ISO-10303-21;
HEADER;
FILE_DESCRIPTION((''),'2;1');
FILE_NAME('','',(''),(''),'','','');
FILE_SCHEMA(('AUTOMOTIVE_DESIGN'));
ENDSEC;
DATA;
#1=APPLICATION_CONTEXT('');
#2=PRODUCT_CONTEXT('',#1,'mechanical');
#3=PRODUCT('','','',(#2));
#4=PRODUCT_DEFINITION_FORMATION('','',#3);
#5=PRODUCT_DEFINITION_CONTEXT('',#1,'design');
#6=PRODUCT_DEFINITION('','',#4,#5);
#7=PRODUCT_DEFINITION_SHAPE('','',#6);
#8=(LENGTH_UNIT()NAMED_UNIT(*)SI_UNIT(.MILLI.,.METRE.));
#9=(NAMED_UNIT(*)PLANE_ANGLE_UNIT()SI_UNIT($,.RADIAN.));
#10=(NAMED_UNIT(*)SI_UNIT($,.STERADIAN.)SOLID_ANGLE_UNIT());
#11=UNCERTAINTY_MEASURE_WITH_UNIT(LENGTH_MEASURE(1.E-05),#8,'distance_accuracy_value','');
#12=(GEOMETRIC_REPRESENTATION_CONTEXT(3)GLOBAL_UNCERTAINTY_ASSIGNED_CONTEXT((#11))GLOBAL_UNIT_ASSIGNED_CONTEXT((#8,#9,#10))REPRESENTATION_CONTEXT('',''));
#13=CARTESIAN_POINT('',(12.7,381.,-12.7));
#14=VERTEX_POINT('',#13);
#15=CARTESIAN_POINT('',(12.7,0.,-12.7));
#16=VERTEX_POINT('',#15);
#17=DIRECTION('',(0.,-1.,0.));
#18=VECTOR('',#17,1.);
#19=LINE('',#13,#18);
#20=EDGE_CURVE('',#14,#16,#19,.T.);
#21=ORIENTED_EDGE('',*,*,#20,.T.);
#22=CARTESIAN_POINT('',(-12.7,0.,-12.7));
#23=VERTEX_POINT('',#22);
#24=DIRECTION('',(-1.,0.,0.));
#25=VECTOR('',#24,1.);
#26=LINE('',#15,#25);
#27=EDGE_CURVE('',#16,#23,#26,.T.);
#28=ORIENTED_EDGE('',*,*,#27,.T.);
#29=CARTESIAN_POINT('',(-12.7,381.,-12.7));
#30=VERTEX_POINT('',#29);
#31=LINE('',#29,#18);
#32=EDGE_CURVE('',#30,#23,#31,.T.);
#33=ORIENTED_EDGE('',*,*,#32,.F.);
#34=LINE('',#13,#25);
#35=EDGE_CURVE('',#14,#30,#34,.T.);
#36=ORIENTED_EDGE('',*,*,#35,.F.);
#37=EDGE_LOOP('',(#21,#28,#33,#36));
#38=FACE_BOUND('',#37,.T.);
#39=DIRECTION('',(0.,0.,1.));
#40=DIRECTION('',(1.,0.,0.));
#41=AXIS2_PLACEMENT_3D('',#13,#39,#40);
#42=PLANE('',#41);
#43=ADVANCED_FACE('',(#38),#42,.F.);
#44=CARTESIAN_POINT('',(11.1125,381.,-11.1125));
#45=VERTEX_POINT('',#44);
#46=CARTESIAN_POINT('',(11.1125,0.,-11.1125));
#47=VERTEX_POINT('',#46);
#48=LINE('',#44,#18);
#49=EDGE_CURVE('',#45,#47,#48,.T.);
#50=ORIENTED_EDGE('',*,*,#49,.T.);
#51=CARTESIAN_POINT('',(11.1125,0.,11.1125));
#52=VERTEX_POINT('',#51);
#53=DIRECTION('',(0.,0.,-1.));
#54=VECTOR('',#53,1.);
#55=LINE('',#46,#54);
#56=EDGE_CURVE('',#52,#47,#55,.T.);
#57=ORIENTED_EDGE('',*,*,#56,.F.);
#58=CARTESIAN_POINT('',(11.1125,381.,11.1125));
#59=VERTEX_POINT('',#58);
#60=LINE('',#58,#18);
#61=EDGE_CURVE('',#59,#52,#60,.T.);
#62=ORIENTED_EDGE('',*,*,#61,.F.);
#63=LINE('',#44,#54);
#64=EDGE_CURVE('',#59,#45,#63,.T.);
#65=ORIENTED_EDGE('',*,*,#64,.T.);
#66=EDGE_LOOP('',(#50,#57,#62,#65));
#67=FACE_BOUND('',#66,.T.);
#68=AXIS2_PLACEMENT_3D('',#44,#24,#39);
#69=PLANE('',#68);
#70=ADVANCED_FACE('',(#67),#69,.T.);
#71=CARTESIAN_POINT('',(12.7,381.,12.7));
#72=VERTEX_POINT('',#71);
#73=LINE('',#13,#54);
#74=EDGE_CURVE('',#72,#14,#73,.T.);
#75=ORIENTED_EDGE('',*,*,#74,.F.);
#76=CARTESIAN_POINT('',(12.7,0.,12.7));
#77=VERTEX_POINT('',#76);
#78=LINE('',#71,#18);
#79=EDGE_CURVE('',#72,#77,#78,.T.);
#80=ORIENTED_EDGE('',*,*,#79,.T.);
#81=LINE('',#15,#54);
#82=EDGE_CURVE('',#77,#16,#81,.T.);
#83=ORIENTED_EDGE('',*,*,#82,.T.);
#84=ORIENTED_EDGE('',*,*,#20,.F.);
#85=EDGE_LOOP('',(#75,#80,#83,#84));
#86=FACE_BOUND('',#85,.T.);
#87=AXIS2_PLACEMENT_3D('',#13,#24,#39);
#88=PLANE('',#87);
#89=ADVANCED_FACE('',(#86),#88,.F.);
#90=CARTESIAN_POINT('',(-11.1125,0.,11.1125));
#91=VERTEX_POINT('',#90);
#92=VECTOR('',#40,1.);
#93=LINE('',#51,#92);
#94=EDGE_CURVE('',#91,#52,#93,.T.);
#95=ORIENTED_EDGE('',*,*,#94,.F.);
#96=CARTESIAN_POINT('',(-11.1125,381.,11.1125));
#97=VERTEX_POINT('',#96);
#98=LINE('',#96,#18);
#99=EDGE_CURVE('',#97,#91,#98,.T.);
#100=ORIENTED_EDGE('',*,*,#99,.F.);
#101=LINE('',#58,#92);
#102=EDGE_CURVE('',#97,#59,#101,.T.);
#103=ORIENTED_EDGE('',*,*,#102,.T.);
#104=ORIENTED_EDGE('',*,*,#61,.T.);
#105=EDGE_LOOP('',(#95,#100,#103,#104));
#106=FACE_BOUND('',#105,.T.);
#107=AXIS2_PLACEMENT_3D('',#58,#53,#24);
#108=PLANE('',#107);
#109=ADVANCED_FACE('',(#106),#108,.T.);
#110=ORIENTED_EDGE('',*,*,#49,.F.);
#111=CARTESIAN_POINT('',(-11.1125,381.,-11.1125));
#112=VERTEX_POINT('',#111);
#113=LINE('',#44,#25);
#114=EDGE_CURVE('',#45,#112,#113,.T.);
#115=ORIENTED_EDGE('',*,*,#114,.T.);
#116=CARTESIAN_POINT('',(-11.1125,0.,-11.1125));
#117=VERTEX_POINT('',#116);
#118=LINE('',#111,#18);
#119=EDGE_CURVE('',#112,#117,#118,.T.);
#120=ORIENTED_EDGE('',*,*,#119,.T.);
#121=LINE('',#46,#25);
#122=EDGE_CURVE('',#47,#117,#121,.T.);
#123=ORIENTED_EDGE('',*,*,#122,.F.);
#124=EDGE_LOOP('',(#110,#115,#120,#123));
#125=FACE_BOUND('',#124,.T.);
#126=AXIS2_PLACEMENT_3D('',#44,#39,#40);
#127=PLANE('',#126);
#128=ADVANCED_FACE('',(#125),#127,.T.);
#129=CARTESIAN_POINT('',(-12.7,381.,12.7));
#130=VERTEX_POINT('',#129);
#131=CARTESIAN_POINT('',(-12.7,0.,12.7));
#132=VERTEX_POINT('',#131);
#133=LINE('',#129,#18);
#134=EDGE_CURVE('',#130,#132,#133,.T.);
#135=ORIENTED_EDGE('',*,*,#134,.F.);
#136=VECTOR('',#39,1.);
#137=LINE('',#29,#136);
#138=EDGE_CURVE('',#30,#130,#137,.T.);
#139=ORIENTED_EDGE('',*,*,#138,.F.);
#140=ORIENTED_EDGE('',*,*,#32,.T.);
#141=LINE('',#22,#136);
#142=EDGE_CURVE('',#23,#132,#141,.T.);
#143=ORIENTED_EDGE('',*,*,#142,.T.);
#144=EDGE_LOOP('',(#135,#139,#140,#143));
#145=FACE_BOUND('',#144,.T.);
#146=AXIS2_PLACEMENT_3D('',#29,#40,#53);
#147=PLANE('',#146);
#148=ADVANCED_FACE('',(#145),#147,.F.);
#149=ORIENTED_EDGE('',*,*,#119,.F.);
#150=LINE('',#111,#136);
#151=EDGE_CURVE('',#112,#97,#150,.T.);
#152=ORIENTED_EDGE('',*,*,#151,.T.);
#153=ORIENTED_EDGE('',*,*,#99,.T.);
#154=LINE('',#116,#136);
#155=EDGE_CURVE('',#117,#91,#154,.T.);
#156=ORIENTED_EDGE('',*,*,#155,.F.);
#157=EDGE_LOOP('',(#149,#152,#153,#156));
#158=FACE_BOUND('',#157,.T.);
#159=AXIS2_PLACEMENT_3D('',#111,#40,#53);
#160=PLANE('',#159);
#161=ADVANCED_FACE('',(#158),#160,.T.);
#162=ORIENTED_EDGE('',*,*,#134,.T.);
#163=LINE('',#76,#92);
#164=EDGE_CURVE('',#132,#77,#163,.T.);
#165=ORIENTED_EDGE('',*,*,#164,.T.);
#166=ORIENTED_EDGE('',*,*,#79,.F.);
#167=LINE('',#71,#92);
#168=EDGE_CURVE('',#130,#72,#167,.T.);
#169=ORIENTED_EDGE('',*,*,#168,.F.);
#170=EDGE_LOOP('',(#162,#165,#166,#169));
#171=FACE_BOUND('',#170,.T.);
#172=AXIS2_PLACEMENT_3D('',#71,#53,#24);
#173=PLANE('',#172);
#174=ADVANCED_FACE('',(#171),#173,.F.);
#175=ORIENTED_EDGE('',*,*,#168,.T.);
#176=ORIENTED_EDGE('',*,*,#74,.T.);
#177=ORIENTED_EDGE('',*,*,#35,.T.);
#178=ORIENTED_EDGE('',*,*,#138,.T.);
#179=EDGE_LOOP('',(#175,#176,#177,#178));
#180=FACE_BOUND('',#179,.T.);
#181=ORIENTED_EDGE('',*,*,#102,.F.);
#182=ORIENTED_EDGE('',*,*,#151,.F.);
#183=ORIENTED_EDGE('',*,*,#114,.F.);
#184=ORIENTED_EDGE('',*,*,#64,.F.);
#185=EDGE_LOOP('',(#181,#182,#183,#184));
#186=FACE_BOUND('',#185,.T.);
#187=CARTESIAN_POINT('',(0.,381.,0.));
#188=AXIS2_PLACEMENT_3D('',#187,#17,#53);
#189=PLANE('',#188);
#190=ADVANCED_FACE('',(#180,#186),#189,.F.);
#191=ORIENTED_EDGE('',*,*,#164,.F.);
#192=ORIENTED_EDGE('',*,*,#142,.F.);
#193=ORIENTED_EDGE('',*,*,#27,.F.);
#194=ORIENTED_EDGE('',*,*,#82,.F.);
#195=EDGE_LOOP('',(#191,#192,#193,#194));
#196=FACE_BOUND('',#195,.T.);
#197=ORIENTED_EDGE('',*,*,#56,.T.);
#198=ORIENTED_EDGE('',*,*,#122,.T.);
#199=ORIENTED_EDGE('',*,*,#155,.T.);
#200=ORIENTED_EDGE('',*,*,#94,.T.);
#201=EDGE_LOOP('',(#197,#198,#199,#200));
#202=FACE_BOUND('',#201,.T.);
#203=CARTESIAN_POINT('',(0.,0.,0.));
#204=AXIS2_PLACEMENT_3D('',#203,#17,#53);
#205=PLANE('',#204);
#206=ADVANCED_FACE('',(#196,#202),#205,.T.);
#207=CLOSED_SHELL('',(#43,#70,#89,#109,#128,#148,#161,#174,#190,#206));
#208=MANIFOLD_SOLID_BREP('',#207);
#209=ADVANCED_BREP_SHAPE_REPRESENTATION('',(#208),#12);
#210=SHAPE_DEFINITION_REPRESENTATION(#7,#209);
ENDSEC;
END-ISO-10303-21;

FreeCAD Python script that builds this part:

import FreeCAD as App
import Part
import Sketcher
Q = App.Units.Quantity


def add_polygon(sketch, points):
    """Adds a closed chain of lines whose ends are joined by coincident constraints."""
    first, n = sketch.GeometryCount, len(points)
    for a, b in zip(points, points[1:] + points[:1]):
        sketch.addGeometry(Part.LineSegment(App.Vector(*a, 0), App.Vector(*b, 0)), False)
    for i in range(n):
        sketch.addConstraint(Sketcher.Constraint("Coincident", first + i, 2, first + (i + 1) % n, 1))

doc = App.newDocument("Part")
body = doc.addObject("PartDesign::Body", "Body")

# Sketch on XZ plane
sketch1 = body.newObject("Sketcher::SketchObject", "Sketch")
sketch1.AttachmentSupport = (doc.getObject("XZ_Plane"), [""])
sketch1.MapMode = "FlatFace"
add_polygon(sketch1, [(-13, -13), (-13, 13), (13, 13), (13, -13)])  # lines 0-3
add_polygon(sketch1, [(11, 11), (-11, 11), (-11, -11), (11, -11)])  # lines 4-7
sketch1.addConstraint(Sketcher.Constraint("Vertical", 0))
sketch1.addConstraint(Sketcher.Constraint("Horizontal", 1))
sketch1.addConstraint(Sketcher.Constraint("Vertical", 2))
sketch1.addConstraint(Sketcher.Constraint("Horizontal", 3))
sketch1.addConstraint(Sketcher.Constraint("Horizontal", 4))
sketch1.addConstraint(Sketcher.Constraint("Vertical", 5))
sketch1.addConstraint(Sketcher.Constraint("Horizontal", 6))
sketch1.addConstraint(Sketcher.Constraint("Vertical", 7))
sketch1.addConstraint(Sketcher.Constraint("Symmetric", 0, 2, 2, 2, -1, 1))
sketch1.addConstraint(Sketcher.Constraint("Symmetric", 4, 2, 6, 2, -1, 1))
sketch1.addConstraint(Sketcher.Constraint("Equal", 3, 0))
sketch1.addConstraint(Sketcher.Constraint("Equal", 6, 5))
sketch1.addConstraint(Sketcher.Constraint("DistanceX", 1, 1, 1, 2, Q("1 in")))
sketch1.addConstraint(Sketcher.Constraint("DistanceX", 4, 2, 4, 1, Q("0.875 in")))
pad1 = body.newObject("PartDesign::Pad", "Pad")
pad1.Profile = sketch1
pad1.Length = Q("15 in")
pad1.Reversed = True

doc.recompute()
